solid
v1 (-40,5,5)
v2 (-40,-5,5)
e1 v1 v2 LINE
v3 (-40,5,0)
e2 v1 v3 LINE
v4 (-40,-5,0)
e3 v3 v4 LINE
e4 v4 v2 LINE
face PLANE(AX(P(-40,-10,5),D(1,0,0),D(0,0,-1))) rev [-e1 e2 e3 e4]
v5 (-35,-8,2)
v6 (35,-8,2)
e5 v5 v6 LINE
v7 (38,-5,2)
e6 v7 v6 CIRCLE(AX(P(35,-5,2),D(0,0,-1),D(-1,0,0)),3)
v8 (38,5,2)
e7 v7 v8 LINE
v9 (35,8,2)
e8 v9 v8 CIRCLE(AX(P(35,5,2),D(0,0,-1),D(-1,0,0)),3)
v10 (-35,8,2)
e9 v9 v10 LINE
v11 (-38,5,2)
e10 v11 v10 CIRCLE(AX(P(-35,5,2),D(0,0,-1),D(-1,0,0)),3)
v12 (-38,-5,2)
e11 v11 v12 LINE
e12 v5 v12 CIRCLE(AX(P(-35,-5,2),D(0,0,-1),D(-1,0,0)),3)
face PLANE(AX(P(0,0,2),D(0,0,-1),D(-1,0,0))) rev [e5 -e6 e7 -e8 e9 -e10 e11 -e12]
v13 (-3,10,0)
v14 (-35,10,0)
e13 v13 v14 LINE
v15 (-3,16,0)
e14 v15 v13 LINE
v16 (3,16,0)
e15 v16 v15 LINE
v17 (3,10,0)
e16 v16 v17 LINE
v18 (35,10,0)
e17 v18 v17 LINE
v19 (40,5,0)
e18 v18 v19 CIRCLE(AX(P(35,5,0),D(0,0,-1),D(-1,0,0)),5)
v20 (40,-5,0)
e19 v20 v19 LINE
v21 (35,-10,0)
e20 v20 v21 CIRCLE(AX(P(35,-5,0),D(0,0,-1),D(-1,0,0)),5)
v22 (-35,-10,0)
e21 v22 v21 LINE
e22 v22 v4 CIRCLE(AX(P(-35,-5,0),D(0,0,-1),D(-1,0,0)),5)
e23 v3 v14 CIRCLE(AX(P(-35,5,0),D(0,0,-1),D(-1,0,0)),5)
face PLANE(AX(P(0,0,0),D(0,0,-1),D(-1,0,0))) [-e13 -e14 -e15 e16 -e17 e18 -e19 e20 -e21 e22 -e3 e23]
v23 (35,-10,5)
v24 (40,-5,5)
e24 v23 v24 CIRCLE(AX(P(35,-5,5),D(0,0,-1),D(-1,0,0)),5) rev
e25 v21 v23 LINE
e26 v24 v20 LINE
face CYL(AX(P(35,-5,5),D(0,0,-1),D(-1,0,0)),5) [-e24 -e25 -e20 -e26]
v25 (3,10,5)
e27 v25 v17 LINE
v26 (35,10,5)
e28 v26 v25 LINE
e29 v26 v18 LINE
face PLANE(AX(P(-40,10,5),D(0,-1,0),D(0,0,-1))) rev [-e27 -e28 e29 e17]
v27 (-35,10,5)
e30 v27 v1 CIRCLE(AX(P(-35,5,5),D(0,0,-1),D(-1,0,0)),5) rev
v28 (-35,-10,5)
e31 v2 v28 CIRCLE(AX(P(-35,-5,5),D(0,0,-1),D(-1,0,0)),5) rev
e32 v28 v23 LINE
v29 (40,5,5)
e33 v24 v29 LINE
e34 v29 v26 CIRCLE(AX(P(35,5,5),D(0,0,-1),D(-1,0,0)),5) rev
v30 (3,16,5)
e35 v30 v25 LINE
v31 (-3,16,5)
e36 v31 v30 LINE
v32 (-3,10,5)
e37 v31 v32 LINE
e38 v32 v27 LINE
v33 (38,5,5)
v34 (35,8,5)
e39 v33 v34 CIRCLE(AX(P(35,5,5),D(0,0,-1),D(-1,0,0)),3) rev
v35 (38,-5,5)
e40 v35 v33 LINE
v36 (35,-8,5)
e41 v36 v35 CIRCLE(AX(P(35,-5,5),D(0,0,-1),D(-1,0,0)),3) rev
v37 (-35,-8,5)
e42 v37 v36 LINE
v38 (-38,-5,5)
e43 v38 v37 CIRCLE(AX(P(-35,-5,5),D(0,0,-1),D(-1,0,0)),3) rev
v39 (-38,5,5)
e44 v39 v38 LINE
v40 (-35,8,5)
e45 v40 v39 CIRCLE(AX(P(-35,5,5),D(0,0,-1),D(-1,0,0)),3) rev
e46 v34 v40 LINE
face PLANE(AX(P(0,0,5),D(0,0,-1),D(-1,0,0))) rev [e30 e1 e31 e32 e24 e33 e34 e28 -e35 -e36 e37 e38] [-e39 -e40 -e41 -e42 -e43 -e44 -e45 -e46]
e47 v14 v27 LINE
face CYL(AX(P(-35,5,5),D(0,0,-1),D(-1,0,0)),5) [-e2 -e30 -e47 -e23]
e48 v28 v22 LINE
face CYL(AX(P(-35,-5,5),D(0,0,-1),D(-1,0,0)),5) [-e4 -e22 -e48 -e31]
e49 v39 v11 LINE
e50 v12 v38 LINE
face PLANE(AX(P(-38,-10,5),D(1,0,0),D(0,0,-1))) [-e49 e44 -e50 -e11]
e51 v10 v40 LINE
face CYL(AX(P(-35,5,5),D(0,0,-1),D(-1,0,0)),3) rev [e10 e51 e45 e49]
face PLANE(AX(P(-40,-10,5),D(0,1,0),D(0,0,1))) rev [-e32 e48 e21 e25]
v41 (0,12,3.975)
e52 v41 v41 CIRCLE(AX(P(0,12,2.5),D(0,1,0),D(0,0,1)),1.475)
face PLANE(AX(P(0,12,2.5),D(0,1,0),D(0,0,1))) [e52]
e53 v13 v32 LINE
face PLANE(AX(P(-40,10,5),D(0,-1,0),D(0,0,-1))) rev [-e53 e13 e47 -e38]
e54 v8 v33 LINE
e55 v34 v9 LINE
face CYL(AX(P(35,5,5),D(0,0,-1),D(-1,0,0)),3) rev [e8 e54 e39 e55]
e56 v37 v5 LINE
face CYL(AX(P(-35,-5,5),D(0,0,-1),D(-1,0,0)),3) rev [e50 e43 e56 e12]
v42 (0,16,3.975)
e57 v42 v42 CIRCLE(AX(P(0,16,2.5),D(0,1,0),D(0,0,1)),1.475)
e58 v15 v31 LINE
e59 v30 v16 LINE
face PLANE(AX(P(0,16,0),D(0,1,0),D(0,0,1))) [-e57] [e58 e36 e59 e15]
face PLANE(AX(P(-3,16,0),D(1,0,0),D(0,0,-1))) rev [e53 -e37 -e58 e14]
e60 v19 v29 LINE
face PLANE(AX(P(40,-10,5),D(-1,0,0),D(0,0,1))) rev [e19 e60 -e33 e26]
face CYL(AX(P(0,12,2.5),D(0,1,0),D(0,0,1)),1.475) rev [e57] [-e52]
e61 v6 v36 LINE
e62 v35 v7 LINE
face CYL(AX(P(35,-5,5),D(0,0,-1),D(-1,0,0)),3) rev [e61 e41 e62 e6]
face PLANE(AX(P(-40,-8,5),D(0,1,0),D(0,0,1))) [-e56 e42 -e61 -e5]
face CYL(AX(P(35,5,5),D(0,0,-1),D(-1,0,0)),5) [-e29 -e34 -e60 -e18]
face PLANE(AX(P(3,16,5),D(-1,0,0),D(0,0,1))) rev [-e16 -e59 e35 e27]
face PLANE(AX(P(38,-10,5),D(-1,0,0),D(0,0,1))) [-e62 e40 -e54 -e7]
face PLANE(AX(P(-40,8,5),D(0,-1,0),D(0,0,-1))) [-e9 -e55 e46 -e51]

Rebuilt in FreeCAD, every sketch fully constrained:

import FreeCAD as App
import Part
import Sketcher
from FreeCAD import Vector
Q = App.Units.Quantity


def edges_at(feature, points):
    """Names of the edges that pass closest to the given points."""
    edges = feature.Shape.Edges
    near = lambda p: min(range(len(edges)), key=lambda i: edges[i].distToShape(Part.Vertex(*p))[0])
    return sorted({f"Edge{near(p) + 1}" for p in points})


def faces_at(feature, points):
    """Names of the faces that lie closest to the given points."""
    faces = feature.Shape.Faces
    near = lambda p: min(range(len(faces)), key=lambda i: faces[i].distToShape(Part.Vertex(*p))[0])
    return sorted({f"Face{near(p) + 1}" for p in points})

doc = App.newDocument("Part")
body = doc.addObject("PartDesign::Body", "Body")

sketch1 = body.newObject("Sketcher::SketchObject", "Sketch")
sketch1.AttachmentSupport = (doc.getObject("XY_Plane"), [""])
sketch1.MapMode = "FlatFace"
sketch1.addGeometry([
    Part.LineSegment(Vector(-40, 10, 0), Vector(-40, -10, 0)),
    Part.LineSegment(Vector(-40, -10, 0), Vector(40, -10, 0)),
    Part.LineSegment(Vector(40, -10, 0), Vector(40, 10, 0)),
    Part.LineSegment(Vector(40, 10, 0), Vector(-40, 10, 0)),
], False)
sketch1.addConstraint([
    Sketcher.Constraint("Coincident", 0, 2, 1, 1),
    Sketcher.Constraint("Coincident", 1, 2, 2, 1),
    Sketcher.Constraint("Coincident", 2, 2, 3, 1),
    Sketcher.Constraint("Coincident", 3, 2, 0, 1),
    Sketcher.Constraint("Vertical", 0),
    Sketcher.Constraint("Horizontal", 1),
    Sketcher.Constraint("Vertical", 2),
    Sketcher.Constraint("Horizontal", 3),
    Sketcher.Constraint("Symmetric", 0, 2, 2, 2, -1, 1),
    Sketcher.Constraint("DistanceX", 1, 1, 1, 2, Q("80 mm")),
    Sketcher.Constraint("DistanceY", 0, 2, 0, 1, Q("20 mm")),
])
pad1 = body.newObject("PartDesign::Pad", "Pad")
pad1.Profile = sketch1
pad1.Length = 5
doc.recompute()

fillet = body.newObject("PartDesign::Fillet", "Fillet")
fillet.Base = (pad1, edges_at(pad1, [
    (40, -10, 2.5),
    (-40, -10, 2.5),
    (-40, 10, 2.5),
    (40, 10, 2.5),
]))
fillet.Radius = 5
doc.recompute()

thickness = body.newObject("PartDesign::Thickness", "Thickness")
thickness.Base = (fillet, faces_at(fillet, [(0, 0, 5)]))
thickness.Value = 2
thickness.Reversed = True
thickness.Join = "Intersection"

sketch2 = body.newObject("Sketcher::SketchObject", "Sketch001")
sketch2.AttachmentSupport = (doc.getObject("XZ_Plane"), [""])
sketch2.MapMode = "FlatFace"
sketch2.AttachmentOffset = App.Placement(Vector(0, 0, -10), App.Rotation())
sketch2.addGeometry([
    Part.LineSegment(Vector(-3, 0, 0), Vector(-3, 5, 0)),
    Part.LineSegment(Vector(-3, 5, 0), Vector(3, 5, 0)),
    Part.LineSegment(Vector(3, 5, 0), Vector(3, 0, 0)),
    Part.LineSegment(Vector(3, 0, 0), Vector(-3, 0, 0)),
], False)
sketch2.addConstraint([
    Sketcher.Constraint("Coincident", 0, 2, 1, 1),
    Sketcher.Constraint("Coincident", 1, 2, 2, 1),
    Sketcher.Constraint("Coincident", 2, 2, 3, 1),
    Sketcher.Constraint("Coincident", 3, 2, 0, 1),
    Sketcher.Constraint("Vertical", 0),
    Sketcher.Constraint("Horizontal", 1),
    Sketcher.Constraint("Vertical", 2),
    Sketcher.Constraint("Horizontal", 3),
    Sketcher.Constraint("Symmetric", 2, 2, 3, 2, -1, 1),
    Sketcher.Constraint("DistanceX", 1, 1, 1, 2, Q("6 mm")),
    Sketcher.Constraint("DistanceY", 0, 1, 0, 2, Q("5 mm")),
])
pad2 = body.newObject("PartDesign::Pad", "Pad001")
pad2.Profile = sketch2
pad2.Length = 6
pad2.Reversed = True

sketch3 = body.newObject("Sketcher::SketchObject", "Sketch002")
sketch3.AttachmentSupport = (doc.getObject("XZ_Plane"), [""])
sketch3.MapMode = "FlatFace"
sketch3.AttachmentOffset = App.Placement(Vector(0, 0, -16), App.Rotation())
sketch3.addGeometry(Part.Circle(Vector(0, 2.5, 0), Vector(0, 0, 1), 1.475), False)
sketch3.addConstraint([
    Sketcher.Constraint("PointOnObject", 0, 3, -2),
    Sketcher.Constraint("Diameter", 0, Q("2.95 mm")),
    Sketcher.Constraint("DistanceY", -1, 1, 0, 3, Q("2.5 mm")),
])
pocket1 = body.newObject("PartDesign::Pocket", "Pocket")
pocket1.Profile = sketch3
pocket1.Length = 4
pocket1.Reversed = True

doc.recompute()
